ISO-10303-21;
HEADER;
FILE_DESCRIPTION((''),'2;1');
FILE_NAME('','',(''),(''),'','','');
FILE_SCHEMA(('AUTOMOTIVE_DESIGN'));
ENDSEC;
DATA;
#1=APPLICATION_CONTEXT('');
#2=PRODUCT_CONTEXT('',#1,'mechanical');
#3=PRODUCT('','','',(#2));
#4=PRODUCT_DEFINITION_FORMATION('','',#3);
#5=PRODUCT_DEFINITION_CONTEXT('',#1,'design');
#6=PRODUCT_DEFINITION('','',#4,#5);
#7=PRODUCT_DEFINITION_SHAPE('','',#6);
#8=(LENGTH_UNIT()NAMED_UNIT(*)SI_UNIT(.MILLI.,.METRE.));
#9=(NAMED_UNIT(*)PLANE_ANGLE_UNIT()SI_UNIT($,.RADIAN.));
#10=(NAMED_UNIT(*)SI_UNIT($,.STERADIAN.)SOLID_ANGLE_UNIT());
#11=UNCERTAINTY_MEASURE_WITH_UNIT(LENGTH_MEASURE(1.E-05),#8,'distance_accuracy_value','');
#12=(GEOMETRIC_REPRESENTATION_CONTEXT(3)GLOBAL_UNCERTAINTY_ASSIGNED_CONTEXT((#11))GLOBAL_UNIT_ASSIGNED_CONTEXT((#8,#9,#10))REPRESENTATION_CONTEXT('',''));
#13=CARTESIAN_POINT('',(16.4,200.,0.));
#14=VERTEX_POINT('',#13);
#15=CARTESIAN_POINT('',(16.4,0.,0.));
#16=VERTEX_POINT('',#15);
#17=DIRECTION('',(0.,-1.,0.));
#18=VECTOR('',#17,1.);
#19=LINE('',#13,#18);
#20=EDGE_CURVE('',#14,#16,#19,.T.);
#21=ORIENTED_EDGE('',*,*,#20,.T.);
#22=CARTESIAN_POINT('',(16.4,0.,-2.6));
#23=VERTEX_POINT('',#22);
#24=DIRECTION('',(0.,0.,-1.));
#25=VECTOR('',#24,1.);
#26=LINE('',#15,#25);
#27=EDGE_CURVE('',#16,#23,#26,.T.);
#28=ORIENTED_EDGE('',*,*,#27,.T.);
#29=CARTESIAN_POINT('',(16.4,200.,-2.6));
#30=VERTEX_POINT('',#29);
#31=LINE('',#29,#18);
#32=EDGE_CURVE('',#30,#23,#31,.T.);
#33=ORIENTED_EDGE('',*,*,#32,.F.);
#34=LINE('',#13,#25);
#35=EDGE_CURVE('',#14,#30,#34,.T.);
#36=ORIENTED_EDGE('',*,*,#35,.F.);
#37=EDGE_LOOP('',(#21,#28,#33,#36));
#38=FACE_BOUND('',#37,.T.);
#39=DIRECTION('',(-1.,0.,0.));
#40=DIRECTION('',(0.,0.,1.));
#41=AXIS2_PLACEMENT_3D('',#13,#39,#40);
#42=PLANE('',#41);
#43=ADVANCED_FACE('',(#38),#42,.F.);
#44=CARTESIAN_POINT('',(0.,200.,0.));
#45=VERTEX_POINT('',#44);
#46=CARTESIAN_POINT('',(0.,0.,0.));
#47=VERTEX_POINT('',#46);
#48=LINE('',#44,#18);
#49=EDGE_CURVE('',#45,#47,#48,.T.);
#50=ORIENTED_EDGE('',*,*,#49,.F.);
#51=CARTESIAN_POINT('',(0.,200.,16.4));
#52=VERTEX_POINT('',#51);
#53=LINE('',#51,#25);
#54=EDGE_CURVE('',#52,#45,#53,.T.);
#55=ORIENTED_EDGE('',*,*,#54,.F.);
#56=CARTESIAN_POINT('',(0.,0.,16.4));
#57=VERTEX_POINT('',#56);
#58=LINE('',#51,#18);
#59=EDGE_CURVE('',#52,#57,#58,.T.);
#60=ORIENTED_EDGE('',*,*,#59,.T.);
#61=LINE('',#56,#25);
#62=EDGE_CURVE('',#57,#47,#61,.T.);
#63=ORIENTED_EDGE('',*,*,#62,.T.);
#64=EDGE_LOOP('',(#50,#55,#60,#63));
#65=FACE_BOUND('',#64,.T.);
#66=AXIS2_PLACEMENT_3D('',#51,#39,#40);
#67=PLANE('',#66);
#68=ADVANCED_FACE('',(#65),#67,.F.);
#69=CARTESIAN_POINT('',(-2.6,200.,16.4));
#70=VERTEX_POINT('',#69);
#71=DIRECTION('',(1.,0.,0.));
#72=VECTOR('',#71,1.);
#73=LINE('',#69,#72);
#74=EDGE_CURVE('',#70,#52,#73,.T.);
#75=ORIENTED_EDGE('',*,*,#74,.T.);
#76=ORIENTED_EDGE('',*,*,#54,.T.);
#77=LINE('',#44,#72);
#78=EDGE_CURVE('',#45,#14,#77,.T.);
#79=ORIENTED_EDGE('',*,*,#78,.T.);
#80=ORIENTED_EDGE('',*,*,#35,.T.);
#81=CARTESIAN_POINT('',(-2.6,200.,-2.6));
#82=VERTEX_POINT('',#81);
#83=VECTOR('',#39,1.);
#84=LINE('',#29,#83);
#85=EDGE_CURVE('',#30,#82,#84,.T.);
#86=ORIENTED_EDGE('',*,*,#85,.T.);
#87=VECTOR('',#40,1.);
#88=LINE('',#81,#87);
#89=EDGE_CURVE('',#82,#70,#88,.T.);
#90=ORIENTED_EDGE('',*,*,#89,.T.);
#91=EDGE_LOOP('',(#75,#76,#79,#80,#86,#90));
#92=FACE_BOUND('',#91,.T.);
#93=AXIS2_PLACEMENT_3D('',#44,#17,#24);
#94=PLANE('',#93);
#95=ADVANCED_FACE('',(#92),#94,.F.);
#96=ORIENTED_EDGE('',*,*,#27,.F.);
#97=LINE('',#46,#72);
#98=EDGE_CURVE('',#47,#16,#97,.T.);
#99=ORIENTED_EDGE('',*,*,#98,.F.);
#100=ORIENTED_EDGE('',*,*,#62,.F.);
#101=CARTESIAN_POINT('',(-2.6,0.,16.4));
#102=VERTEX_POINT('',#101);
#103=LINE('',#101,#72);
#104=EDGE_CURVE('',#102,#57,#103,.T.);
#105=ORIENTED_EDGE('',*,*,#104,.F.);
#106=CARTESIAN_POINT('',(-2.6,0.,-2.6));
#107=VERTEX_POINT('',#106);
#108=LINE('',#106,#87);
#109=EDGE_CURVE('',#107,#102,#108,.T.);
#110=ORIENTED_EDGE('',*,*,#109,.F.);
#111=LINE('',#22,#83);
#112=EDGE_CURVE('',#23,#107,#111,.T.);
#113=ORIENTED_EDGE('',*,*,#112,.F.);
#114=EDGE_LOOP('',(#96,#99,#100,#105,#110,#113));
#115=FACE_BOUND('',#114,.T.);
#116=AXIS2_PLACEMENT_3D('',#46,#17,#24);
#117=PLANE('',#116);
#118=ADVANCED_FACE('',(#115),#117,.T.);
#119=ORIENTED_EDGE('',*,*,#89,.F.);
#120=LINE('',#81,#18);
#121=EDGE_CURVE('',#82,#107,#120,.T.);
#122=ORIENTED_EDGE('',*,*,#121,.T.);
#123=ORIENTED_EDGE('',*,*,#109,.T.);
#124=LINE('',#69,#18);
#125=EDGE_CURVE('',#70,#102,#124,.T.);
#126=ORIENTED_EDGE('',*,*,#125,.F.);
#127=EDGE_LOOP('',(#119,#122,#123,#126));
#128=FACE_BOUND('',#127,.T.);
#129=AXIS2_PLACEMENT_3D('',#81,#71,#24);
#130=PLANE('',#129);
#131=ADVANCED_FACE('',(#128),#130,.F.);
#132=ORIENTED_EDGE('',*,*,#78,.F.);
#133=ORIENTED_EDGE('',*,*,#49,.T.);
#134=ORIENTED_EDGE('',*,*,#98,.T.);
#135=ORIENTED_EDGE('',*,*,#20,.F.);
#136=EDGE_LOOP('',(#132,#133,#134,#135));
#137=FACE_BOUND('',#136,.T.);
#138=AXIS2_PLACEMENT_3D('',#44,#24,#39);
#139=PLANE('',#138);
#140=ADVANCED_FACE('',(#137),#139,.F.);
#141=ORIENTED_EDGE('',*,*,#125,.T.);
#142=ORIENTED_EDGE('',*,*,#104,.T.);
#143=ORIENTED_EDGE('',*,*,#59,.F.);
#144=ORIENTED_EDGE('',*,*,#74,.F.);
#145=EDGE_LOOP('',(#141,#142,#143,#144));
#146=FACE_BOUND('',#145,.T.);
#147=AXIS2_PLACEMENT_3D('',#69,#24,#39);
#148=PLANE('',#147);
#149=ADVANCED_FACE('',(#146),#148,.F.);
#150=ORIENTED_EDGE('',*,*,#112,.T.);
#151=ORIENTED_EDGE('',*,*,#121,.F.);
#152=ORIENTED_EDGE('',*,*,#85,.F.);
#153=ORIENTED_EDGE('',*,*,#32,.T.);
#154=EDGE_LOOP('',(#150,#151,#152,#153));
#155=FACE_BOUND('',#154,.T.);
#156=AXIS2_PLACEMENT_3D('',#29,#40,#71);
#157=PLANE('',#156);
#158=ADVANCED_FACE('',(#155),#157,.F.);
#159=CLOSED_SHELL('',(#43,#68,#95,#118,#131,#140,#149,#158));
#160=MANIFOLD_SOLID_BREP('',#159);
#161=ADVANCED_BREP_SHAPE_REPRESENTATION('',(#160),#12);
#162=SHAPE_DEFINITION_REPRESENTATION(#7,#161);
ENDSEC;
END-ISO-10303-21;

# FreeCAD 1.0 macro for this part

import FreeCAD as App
import Part
import Sketcher
from FreeCAD import Vector

doc = App.newDocument("Part")
body = doc.addObject("PartDesign::Body", "Body")

sketch1 = body.newObject("Sketcher::SketchObject", "Sketch")
sketch1.AttachmentSupport = (doc.getObject("XZ_Plane"), [""])
sketch1.MapMode = "FlatFace"
sketch1.addGeometry([
    Part.LineSegment(Vector(0, 0, 0), Vector(16.4, 0, 0)),
    Part.LineSegment(Vector(16.4, 0, 0), Vector(16.4, -2.6, 0)),
    Part.LineSegment(Vector(16.4, -2.6, 0), Vector(-2.6, -2.6, 0)),
    Part.LineSegment(Vector(-2.6, -2.6, 0), Vector(-2.6, 16.4, 0)),
    Part.LineSegment(Vector(-2.6, 16.4, 0), Vector(0, 16.4, 0)),
    Part.LineSegment(Vector(0, 16.4, 0), Vector(0, 0, 0)),
], False)
sketch1.addConstraint([
    Sketcher.Constraint("Coincident", 0, 2, 1, 1),
    Sketcher.Constraint("Coincident", 1, 2, 2, 1),
    Sketcher.Constraint("Coincident", 2, 2, 3, 1),
    Sketcher.Constraint("Coincident", 3, 2, 4, 1),
    Sketcher.Constraint("Coincident", 4, 2, 5, 1),
    Sketcher.Constraint("Coincident", 5, 2, 0, 1),
    Sketcher.Constraint("Horizontal", 0),
    Sketcher.Constraint("Vertical", 1),
    Sketcher.Constraint("Horizontal", 2),
    Sketcher.Constraint("Vertical", 3),
    Sketcher.Constraint("Horizontal", 4),
    Sketcher.Constraint("Vertical", 5),
    Sketcher.Constraint("Coincident", 5, 2, -1, 1),
    Sketcher.Constraint("Equal", 4, 1),
    Sketcher.Constraint("Equal", 2, 3),
    Sketcher.Constraint("DistanceX", 2, 2, 2, 1, 19.0),
    Sketcher.Constraint("DistanceX", 0, 1, 0, 2, 16.4),
])
pad1 = body.newObject("PartDesign::Pad", "Pad")
pad1.Profile = sketch1
pad1.Length = 200
pad1.Reversed = True

doc.recompute()
